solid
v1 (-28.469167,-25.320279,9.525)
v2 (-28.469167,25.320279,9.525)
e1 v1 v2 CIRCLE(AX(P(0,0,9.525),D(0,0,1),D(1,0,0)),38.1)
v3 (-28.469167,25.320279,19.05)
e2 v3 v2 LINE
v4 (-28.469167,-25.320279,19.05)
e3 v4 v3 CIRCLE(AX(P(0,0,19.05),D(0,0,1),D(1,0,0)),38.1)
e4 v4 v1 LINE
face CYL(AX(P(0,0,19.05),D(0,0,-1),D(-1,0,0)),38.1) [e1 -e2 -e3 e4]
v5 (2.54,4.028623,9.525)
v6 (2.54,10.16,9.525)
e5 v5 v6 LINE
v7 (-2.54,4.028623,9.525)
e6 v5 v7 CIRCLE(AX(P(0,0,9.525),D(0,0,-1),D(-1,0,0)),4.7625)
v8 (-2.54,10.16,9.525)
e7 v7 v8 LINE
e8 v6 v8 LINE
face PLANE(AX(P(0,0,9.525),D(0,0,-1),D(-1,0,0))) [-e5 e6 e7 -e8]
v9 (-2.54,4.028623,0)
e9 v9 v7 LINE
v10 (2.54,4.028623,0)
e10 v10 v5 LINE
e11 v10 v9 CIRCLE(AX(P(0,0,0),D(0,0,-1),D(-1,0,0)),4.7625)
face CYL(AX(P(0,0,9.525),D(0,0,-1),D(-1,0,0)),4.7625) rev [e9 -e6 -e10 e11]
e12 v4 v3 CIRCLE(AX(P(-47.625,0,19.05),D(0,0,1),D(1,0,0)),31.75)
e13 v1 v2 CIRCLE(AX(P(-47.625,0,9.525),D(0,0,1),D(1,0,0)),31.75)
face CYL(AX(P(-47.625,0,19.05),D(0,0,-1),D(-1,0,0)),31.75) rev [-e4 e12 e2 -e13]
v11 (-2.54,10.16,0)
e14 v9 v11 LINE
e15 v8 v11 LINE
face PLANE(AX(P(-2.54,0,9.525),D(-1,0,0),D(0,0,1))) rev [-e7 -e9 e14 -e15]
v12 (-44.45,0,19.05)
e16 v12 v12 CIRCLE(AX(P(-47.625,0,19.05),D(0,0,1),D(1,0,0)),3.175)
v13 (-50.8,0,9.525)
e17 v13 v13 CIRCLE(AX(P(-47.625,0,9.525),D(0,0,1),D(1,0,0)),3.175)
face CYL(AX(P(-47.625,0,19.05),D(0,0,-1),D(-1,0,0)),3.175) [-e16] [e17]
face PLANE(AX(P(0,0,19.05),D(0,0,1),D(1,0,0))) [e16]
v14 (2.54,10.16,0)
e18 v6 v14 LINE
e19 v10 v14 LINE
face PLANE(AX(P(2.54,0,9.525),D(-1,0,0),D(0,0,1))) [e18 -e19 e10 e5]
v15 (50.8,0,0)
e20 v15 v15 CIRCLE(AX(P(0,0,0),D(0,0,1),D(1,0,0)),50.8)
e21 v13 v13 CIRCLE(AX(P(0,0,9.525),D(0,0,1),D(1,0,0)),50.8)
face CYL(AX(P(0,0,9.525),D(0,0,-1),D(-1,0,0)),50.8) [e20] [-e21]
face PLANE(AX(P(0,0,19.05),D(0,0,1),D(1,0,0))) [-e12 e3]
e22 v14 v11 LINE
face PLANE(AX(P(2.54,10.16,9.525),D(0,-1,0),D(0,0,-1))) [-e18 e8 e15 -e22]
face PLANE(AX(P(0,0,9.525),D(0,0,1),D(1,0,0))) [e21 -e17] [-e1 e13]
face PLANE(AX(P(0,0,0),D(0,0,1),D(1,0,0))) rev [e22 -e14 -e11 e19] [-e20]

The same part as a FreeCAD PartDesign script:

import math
import FreeCAD as App
import Part
import Sketcher

V = App.Vector
Q = App.Units.Quantity

doc = App.newDocument("Part")
body = doc.addObject("PartDesign::Body", "Body")

sketch1 = doc.addObject("Sketcher::SketchObject", "Sketch")
body.addObject(sketch1)
sketch1.AttachmentSupport = (doc.XY_Plane, [""])
sketch1.MapMode = "FlatFace"
sketch1.addGeometry(Part.Circle(V(0, 0, 0), V(0, 0, 1), 51), False)
sketch1.addConstraint([
    Sketcher.Constraint("Coincident", 0, 3, -1, 1),
    Sketcher.Constraint("Diameter", 0, Q("4 in")),
])
pad1 = doc.addObject("PartDesign::Pad", "Pad")
body.addObject(pad1)
pad1.Profile = sketch1
pad1.Length = Q("0.375 in")

sketch2 = doc.addObject("Sketcher::SketchObject", "Sketch001")
body.addObject(sketch2)
sketch2.AttachmentSupport = (doc.XY_Plane, [""])
sketch2.MapMode = "FlatFace"
sketch2.AttachmentOffset = App.Placement(V(0, 0, 0.375 * 25.4), App.Rotation())
sketch2.addGeometry([
    Part.ArcOfCircle(Part.Circle(V(-47.6, 0, 0), V(0, 0, 1), 31.8), math.radians(0), math.radians(53)),
    Part.ArcOfCircle(Part.Circle(V(-47.6, 0, 0), V(0, 0, 1), 31.8), math.radians(-53), math.radians(0)),
    Part.ArcOfCircle(Part.Circle(V(0, 0, 0), V(0, 0, 1), 38.1), math.radians(-138), math.radians(138)),
    Part.Circle(V(-47.6, 0, 0), V(0, 0, 1), 3.2),
], False)
sketch2.addConstraint([
    Sketcher.Constraint("Tangent", 0, 1, 1, 2),
    Sketcher.Constraint("Coincident", 1, 1, 2, 1),
    Sketcher.Constraint("Coincident", 2, 2, 0, 2),
    Sketcher.Constraint("Coincident", 2, 3, -1, 1),
    Sketcher.Constraint("Coincident", 3, 3, 0, 3),
    Sketcher.Constraint("Equal", 0, 1),
    Sketcher.Constraint("PointOnObject", 0, 3, -1),
    Sketcher.Constraint("PointOnObject", 0, 1, -1),
    Sketcher.Constraint("Radius", 2, Q("1.5 in")),
    Sketcher.Constraint("Diameter", 3, Q("0.25 in")),
    Sketcher.Constraint("Radius", 0, Q("1.25 in")),
    Sketcher.Constraint("DistanceX", 0, 3, -1, 1, Q("1.875 in")),
])
pad2 = doc.addObject("PartDesign::Pad", "Pad001")
body.addObject(pad2)
pad2.Profile = sketch2
pad2.Length = Q("0.375 in")

sketch3 = doc.addObject("Sketcher::SketchObject", "Sketch002")
body.addObject(sketch3)
sketch3.AttachmentSupport = (doc.XY_Plane, [""])
sketch3.MapMode = "FlatFace"
sketch3.addGeometry([
    Part.ArcOfCircle(Part.Circle(V(0, 0, 0), V(0, 0, 1), 4.8), math.radians(122), math.radians(418)),
    Part.LineSegment(V(-2.5, 4, 0), V(-2.5, 10.2, 0)),
    Part.LineSegment(V(-2.5, 10.2, 0), V(2.5, 10.2, 0)),
    Part.LineSegment(V(2.5, 10.2, 0), V(2.5, 4, 0)),
], False)
sketch3.addConstraint([
    Sketcher.Constraint("Coincident", 0, 1, 1, 1),
    Sketcher.Constraint("Coincident", 1, 2, 2, 1),
    Sketcher.Constraint("Coincident", 2, 2, 3, 1),
    Sketcher.Constraint("Coincident", 3, 2, 0, 2),
    Sketcher.Constraint("Vertical", 1),
    Sketcher.Constraint("Horizontal", 2),
    Sketcher.Constraint("Vertical", 3),
    Sketcher.Constraint("Coincident", 0, 3, -1, 1),
    Sketcher.Constraint("Horizontal", 0, 1, 3, 2),
    Sketcher.Constraint("DistanceX", 2, 1, 2, 2, Q("0.2 in")),
    Sketcher.Constraint("Radius", 0, Q("0.1875 in")),
    Sketcher.Constraint("DistanceY", -1, 1, 1, 2, Q("0.4 in")),
])
pocket1 = doc.addObject("PartDesign::Pocket", "Pocket")
body.addObject(pocket1)
pocket1.Profile = sketch3
pocket1.Length = Q("0.375 in")
pocket1.Reversed = True

doc.recompute()
